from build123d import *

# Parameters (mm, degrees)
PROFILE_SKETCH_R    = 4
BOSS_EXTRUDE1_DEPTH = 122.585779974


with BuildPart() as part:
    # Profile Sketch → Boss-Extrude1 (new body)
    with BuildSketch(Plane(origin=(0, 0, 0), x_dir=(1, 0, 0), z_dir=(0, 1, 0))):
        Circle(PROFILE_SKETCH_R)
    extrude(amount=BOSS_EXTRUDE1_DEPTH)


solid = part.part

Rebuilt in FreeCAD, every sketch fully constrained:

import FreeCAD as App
import Part
import Sketcher

doc = App.newDocument("Part")
body = doc.addObject("PartDesign::Body", "Body")

sketch1 = body.newObject("Sketcher::SketchObject", "Sketch")
sketch1.AttachmentSupport = (doc.getObject("XZ_Plane"), [""])
sketch1.MapMode = "FlatFace"
sketch1.addGeometry(Part.Circle(App.Vector(0, 0, 0), App.Vector(0, 0, 1), 4), False)
sketch1.addConstraint([
    Sketcher.Constraint("Coincident", 0, 3, -1, 1),
    Sketcher.Constraint("Diameter", 0, 8.0),
])
pad1 = body.newObject("PartDesign::Pad", "Pad")
pad1.Profile = sketch1
pad1.Length = 122.58578
pad1.Reversed = True

doc.recompute()
